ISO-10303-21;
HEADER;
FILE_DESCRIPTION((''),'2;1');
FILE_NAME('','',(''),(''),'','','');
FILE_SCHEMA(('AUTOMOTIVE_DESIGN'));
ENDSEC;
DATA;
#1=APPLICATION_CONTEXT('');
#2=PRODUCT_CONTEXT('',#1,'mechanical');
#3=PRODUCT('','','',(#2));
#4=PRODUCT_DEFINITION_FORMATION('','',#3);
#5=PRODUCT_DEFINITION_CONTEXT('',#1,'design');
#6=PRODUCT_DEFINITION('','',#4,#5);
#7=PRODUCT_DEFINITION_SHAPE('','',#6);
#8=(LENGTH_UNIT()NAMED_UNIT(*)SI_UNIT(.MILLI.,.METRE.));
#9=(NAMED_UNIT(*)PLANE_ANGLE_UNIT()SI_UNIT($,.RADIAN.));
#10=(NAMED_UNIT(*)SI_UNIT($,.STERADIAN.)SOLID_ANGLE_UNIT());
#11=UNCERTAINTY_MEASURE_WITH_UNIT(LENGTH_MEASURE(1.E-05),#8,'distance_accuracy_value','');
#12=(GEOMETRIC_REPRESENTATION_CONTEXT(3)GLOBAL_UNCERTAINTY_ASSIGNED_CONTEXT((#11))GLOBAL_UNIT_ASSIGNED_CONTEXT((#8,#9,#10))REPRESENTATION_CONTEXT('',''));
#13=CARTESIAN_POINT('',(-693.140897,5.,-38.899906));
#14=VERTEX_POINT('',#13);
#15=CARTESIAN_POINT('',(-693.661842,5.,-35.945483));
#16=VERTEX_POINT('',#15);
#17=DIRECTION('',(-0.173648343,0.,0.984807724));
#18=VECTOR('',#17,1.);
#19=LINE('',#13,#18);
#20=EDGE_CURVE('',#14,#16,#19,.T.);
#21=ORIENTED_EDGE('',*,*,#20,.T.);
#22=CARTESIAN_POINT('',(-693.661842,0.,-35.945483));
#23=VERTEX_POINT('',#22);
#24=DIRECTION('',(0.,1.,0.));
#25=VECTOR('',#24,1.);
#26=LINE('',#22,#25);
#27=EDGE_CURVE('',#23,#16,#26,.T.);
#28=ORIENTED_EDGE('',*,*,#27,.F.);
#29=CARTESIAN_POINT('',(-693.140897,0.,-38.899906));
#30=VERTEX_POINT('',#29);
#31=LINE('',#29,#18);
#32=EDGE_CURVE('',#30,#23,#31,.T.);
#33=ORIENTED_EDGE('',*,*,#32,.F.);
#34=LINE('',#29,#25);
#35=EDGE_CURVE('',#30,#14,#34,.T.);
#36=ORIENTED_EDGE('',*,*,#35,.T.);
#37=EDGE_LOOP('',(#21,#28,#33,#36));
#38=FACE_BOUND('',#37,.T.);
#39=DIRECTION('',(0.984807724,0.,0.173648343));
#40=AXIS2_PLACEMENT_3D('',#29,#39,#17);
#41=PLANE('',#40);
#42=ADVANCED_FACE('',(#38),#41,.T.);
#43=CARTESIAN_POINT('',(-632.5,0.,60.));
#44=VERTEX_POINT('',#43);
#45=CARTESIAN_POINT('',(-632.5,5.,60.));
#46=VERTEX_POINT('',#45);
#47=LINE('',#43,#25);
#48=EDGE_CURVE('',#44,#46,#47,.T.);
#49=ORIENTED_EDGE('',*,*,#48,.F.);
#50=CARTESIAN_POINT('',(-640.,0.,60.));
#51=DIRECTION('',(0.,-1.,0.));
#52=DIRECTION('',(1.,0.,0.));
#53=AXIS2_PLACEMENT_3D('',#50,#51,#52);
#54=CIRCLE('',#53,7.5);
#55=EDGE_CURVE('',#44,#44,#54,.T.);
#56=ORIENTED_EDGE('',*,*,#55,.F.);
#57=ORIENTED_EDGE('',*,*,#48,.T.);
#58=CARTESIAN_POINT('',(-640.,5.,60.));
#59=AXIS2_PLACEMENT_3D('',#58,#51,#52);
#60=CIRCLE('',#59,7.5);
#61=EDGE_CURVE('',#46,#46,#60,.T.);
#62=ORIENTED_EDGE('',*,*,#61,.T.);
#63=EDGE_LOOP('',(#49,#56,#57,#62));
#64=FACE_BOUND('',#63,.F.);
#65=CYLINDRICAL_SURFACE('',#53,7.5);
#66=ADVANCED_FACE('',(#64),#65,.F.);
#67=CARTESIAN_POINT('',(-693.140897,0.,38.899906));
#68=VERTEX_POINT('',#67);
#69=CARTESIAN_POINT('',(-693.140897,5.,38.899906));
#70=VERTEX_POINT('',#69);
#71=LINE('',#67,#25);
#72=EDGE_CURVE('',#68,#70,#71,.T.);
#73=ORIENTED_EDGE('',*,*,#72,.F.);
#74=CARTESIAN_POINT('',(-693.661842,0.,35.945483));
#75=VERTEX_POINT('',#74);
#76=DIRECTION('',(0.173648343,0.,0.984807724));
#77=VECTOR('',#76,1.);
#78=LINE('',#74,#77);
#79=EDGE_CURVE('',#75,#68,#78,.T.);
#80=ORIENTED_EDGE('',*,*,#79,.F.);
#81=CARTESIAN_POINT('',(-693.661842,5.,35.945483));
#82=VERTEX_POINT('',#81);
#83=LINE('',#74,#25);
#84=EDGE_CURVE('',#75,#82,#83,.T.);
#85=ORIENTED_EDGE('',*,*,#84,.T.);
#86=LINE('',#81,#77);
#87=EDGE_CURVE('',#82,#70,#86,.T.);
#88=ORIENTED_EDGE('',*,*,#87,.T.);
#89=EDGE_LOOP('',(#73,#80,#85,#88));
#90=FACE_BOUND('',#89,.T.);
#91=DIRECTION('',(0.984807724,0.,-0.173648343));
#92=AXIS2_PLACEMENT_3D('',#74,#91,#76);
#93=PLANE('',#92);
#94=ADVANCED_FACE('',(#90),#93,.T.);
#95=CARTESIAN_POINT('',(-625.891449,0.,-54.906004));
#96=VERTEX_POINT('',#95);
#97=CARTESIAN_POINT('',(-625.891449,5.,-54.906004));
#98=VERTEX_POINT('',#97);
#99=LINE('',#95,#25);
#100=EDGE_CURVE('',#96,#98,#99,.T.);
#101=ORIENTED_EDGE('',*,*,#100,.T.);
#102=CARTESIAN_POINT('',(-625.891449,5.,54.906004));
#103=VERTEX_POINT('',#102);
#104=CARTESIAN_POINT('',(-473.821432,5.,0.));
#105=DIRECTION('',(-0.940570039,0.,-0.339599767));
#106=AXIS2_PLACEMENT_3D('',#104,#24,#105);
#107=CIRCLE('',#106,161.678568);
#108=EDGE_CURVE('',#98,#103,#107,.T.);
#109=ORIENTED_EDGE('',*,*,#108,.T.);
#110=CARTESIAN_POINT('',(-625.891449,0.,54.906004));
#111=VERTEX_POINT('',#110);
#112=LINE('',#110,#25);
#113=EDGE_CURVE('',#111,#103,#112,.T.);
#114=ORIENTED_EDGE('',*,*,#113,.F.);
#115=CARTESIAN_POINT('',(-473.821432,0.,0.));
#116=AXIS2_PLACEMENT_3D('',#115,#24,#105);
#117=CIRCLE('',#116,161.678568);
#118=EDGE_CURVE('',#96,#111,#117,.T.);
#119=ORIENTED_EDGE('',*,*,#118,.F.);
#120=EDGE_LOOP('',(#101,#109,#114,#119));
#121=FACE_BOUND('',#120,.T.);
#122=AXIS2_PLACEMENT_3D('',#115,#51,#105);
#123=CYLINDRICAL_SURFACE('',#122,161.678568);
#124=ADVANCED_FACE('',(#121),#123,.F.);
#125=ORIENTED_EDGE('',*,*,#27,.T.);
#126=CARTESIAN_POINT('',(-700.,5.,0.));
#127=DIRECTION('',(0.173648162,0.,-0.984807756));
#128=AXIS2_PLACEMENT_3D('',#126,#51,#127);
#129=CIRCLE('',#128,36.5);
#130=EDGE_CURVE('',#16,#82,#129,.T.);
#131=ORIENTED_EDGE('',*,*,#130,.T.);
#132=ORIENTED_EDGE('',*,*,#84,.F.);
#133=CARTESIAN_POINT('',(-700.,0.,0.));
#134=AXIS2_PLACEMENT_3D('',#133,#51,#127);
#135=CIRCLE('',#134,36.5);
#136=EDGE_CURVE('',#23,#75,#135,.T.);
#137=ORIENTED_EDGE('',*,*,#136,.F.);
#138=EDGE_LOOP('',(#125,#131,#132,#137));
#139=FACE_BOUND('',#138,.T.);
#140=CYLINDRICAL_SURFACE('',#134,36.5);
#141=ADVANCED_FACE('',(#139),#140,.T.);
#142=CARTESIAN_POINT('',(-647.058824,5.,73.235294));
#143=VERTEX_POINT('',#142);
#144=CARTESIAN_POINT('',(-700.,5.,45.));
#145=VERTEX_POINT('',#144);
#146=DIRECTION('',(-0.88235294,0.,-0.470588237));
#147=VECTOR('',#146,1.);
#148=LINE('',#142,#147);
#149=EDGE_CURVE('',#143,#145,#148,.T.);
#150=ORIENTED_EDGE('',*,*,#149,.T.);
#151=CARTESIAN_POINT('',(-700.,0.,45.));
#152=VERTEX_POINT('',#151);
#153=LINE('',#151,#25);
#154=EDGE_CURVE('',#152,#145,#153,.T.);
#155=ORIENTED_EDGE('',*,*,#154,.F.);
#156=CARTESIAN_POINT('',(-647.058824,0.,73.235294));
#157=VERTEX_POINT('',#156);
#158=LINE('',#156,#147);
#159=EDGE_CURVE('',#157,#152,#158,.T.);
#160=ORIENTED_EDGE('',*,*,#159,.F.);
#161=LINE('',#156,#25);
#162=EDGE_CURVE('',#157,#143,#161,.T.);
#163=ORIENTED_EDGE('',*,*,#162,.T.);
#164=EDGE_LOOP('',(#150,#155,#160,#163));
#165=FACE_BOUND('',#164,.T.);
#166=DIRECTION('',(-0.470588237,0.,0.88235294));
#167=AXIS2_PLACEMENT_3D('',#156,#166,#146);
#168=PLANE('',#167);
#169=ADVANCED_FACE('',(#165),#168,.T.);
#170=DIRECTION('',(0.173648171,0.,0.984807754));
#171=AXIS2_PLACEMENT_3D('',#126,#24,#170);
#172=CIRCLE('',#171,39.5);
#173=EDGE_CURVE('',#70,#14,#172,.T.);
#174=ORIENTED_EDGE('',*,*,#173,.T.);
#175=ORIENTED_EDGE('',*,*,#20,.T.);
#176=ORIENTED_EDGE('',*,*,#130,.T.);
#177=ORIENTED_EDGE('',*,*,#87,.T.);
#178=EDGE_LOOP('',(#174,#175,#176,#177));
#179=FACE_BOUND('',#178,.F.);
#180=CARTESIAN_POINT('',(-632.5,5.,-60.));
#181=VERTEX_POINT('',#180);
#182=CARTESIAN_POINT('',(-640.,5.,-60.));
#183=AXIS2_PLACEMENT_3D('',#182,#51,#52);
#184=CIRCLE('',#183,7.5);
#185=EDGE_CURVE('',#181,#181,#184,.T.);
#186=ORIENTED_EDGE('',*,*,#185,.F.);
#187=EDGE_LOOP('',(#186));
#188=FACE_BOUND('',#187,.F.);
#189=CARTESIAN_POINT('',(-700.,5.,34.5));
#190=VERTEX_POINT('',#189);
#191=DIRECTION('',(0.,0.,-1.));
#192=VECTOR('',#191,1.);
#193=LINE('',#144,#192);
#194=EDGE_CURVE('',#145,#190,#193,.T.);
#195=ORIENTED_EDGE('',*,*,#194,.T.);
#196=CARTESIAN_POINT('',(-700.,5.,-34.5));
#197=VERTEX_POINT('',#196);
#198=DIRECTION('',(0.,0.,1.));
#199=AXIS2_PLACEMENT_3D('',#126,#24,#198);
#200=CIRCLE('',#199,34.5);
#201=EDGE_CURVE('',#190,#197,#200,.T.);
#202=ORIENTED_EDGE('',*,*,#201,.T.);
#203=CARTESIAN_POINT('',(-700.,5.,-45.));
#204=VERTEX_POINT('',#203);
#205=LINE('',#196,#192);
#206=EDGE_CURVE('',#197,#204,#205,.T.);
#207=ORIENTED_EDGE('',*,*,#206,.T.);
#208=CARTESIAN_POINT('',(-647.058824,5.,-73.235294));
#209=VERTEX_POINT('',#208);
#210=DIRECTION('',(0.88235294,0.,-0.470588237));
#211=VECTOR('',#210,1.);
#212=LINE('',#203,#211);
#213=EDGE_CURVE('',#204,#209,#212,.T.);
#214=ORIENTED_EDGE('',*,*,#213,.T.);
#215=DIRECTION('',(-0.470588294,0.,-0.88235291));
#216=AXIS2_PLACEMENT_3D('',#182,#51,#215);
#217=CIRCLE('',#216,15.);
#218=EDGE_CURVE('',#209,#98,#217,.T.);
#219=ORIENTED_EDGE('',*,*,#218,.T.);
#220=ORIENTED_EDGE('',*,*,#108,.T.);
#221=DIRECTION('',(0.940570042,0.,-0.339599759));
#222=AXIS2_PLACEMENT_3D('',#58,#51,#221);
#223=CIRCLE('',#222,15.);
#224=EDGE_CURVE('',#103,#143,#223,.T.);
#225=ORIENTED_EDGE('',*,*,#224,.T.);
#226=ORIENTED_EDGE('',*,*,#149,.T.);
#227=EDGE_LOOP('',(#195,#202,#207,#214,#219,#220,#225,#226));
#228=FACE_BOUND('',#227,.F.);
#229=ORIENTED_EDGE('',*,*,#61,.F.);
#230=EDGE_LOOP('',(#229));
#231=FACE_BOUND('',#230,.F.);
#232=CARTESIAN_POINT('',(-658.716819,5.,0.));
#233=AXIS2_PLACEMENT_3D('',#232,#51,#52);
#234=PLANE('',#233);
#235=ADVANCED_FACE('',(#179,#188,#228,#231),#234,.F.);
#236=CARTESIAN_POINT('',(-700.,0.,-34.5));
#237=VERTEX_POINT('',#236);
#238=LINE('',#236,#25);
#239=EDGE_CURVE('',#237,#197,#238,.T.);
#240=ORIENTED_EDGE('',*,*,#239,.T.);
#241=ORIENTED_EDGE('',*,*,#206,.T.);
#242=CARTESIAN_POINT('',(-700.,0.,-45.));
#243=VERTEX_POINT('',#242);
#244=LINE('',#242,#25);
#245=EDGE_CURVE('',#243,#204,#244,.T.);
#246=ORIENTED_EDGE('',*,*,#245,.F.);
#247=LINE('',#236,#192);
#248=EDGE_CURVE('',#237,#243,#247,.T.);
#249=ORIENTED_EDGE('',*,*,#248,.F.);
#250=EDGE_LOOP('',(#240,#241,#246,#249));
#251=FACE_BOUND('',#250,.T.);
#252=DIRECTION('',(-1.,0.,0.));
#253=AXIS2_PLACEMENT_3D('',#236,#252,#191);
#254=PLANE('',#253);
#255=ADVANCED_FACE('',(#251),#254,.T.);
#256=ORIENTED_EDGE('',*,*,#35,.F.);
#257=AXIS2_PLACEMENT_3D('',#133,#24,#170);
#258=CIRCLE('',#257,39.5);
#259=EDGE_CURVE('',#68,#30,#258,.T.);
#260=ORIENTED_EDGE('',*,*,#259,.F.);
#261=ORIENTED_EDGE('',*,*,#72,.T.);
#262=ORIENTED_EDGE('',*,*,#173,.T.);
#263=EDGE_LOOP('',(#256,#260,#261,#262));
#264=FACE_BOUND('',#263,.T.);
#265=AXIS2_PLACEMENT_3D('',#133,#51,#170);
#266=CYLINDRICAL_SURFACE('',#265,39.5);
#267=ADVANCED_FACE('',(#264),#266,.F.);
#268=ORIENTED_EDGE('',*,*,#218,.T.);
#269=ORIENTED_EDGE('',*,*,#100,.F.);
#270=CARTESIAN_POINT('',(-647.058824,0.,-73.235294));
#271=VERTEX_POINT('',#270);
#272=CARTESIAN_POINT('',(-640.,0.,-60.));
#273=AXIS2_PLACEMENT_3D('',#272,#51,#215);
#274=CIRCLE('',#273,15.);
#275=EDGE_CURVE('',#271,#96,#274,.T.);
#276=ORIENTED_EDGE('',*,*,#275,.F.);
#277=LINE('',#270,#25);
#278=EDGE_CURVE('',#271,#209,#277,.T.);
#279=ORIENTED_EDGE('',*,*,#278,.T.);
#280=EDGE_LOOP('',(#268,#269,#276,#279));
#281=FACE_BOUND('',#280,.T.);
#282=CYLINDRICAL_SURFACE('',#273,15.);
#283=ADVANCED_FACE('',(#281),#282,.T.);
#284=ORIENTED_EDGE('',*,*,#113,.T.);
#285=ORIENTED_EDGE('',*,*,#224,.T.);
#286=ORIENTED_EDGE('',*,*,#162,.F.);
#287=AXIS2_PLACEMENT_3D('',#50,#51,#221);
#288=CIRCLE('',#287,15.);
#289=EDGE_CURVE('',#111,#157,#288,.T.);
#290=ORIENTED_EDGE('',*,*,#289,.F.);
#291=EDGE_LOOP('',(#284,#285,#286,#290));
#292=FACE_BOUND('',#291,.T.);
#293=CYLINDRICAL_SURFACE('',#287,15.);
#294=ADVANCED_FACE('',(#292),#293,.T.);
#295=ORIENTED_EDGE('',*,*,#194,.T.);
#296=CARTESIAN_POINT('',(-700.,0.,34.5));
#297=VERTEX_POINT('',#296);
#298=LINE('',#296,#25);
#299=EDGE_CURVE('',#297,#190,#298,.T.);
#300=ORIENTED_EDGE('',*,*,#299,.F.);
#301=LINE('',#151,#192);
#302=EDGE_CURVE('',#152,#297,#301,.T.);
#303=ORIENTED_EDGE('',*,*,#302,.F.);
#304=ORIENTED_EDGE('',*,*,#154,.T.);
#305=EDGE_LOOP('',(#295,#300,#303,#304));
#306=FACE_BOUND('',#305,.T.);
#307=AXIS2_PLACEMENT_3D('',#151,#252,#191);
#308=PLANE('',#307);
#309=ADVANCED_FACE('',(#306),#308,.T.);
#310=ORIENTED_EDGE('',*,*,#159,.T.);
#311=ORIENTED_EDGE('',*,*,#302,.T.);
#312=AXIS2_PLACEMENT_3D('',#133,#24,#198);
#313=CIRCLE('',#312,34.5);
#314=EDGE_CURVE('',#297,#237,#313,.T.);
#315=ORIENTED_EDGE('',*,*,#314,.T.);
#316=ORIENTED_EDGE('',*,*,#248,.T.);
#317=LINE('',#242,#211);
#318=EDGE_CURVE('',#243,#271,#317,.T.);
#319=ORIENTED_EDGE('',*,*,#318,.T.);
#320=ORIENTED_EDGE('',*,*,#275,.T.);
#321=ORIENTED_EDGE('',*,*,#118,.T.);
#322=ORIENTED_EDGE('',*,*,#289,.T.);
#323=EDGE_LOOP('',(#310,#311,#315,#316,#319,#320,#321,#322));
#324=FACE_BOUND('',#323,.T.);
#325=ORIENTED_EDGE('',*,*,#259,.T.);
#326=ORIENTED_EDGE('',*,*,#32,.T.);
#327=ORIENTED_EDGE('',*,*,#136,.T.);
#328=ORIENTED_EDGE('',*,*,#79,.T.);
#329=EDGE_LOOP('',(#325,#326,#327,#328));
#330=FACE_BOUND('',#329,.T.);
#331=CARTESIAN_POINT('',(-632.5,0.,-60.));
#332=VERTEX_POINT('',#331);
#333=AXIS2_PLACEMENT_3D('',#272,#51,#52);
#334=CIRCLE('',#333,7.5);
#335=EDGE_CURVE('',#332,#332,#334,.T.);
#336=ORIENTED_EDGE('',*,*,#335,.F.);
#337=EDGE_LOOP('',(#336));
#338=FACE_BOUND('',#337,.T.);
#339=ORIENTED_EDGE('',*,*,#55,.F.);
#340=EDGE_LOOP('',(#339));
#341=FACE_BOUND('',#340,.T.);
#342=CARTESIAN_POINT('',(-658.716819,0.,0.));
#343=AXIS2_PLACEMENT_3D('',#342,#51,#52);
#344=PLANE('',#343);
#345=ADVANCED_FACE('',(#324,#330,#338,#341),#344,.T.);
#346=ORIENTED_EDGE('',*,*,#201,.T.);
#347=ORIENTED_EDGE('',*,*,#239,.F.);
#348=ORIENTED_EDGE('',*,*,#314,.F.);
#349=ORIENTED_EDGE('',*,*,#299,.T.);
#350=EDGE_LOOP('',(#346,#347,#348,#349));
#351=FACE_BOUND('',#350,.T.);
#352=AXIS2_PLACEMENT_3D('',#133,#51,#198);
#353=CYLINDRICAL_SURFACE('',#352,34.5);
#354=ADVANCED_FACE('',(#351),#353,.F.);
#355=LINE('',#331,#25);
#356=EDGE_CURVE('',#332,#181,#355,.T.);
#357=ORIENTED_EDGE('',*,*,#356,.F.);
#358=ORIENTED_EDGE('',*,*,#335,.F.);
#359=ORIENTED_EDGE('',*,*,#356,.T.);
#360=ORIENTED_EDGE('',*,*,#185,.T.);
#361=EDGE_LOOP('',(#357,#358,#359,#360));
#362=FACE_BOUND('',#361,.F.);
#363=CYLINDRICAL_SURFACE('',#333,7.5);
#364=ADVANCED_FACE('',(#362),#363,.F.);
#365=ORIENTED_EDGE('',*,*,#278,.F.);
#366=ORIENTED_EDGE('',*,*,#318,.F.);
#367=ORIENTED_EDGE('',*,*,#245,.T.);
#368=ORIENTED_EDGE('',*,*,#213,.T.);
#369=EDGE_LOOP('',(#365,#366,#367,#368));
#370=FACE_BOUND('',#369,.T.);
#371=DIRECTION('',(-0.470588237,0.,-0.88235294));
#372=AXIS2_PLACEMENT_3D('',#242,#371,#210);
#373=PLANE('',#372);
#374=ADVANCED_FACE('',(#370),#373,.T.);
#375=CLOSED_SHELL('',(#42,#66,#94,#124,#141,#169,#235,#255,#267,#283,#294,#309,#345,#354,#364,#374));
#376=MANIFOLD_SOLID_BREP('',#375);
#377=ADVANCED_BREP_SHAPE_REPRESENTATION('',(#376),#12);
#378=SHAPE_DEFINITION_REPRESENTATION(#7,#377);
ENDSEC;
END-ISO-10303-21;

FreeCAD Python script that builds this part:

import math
import FreeCAD as App
import Part
import Sketcher
from FreeCAD import Vector
Q = App.Units.Quantity

doc = App.newDocument("Part")
body = doc.addObject("PartDesign::Body", "Body")

# Sketch on XZ plane
sketch1 = body.newObject("Sketcher::SketchObject", "Sketch")
sketch1.AttachmentSupport = (doc.getObject("XZ_Plane"), [""])
sketch1.MapMode = "FlatFace"
sketch1.addGeometry([
    Part.ArcOfCircle(Part.Circle(Vector(-700, 0, 0), Vector(0, 0, 1), 34.5), math.radians(-90), math.radians(90)),  # 0
    Part.LineSegment(Vector(-700, -34.5, 0), Vector(-700, -45, 0)),  # 1
    Part.LineSegment(Vector(-700, -45, 0), Vector(-647.1, -73.2, 0)),  # 2
    Part.ArcOfCircle(Part.Circle(Vector(-640, -60, 0), Vector(0, 0, 1), 15), math.radians(-118), math.radians(20)),  # 3
    Part.ArcOfCircle(Part.Circle(Vector(-473.8, 0, 0), Vector(0, 0, 1), 161.7), math.radians(160), math.radians(200)),  # 4
    Part.ArcOfCircle(Part.Circle(Vector(-640, 60, 0), Vector(0, 0, 1), 15), math.radians(-20), math.radians(118)),  # 5
    Part.LineSegment(Vector(-647.1, 73.2, 0), Vector(-700, 45, 0)),  # 6
    Part.LineSegment(Vector(-700, 45, 0), Vector(-700, 34.5, 0)),  # 7
    Part.Circle(Vector(-640, -60, 0), Vector(0, 0, 1), 7.5),  # 8
    Part.ArcOfCircle(Part.Circle(Vector(-700, 0, 0), Vector(0, 0, 1), 39.5), math.radians(-80), math.radians(80)),  # 9
    Part.LineSegment(Vector(-693.1, -38.9, 0), Vector(-693.7, -35.9, 0)),  # 10
    Part.ArcOfCircle(Part.Circle(Vector(-700, 0, 0), Vector(0, 0, 1), 36.5), math.radians(-80), math.radians(80)),  # 11
    Part.LineSegment(Vector(-693.7, 35.9, 0), Vector(-693.1, 38.9, 0)),  # 12
    Part.Circle(Vector(-640, 60, 0), Vector(0, 0, 1), 7.5),  # 13
], False)
sketch1.addConstraint([
    Sketcher.Constraint("Coincident", 0, 1, 1, 1),
    Sketcher.Constraint("Coincident", 1, 2, 2, 1),
    Sketcher.Constraint("Tangent", 2, 2, 3, 1),
    Sketcher.Constraint("Tangent", 3, 2, 4, 2),
    Sketcher.Constraint("Tangent", 4, 1, 5, 1),
    Sketcher.Constraint("Tangent", 5, 2, 6, 1),
    Sketcher.Constraint("Coincident", 6, 2, 7, 1),
    Sketcher.Constraint("Coincident", 7, 2, 0, 2),
    Sketcher.Constraint("Coincident", 9, 1, 10, 1),
    Sketcher.Constraint("Coincident", 10, 2, 11, 1),
    Sketcher.Constraint("Coincident", 11, 2, 12, 1),
    Sketcher.Constraint("Coincident", 12, 2, 9, 2),
    Sketcher.Constraint("Vertical", 1),
    Sketcher.Constraint("Vertical", 7),
    Sketcher.Constraint("Coincident", 8, 3, 3, 3),
    Sketcher.Constraint("Coincident", 9, 3, 0, 3),
    Sketcher.Constraint("Coincident", 11, 3, 0, 3),
    Sketcher.Constraint("Coincident", 13, 3, 5, 3),
    Sketcher.Constraint("Equal", 3, 5),
    Sketcher.Constraint("Equal", 8, 13),
    Sketcher.Constraint("Symmetric", 3, 3, 5, 3, -1),
    Sketcher.Constraint("Symmetric", 1, 2, 6, 2, -1),
    Sketcher.Constraint("Symmetric", 10, 2, 11, 2, -1),
    Sketcher.Constraint("Vertical", 11, 3, 0, 1),
    Sketcher.Constraint("Vertical", 9, 1, 12, 2),
    Sketcher.Constraint("Diameter", 8, Q("15 mm")),
    Sketcher.Constraint("Radius", 3, Q("15 mm")),
    Sketcher.Constraint("Radius", 0, Q("34.5 mm")),
    Sketcher.Constraint("Radius", 9, Q("39.5 mm")),
    Sketcher.Constraint("Radius", 11, Q("36.5 mm")),
    Sketcher.Constraint("Angle", 10, Q("100.00001 deg")),
    Sketcher.Constraint("Distance", 2, Q("60 mm")),
    Sketcher.Constraint("DistanceY", 1, 2, 1, 1, Q("10.5 mm")),
    Sketcher.Constraint("DistanceX", 0, 3, -1, 1, Q("700 mm")),
    Sketcher.Constraint("DistanceX", 3, 3, -1, 1, Q("640 mm")),
    Sketcher.Constraint("Radius", 4, Q("161.678568 mm")),
    Sketcher.Constraint("DistanceX", 10, 2, -1, 1, Q("693.661842 mm")),
])
pad1 = body.newObject("PartDesign::Pad", "Pad")
pad1.Profile = sketch1
pad1.Length = 5
pad1.Reversed = True

doc.recompute()
